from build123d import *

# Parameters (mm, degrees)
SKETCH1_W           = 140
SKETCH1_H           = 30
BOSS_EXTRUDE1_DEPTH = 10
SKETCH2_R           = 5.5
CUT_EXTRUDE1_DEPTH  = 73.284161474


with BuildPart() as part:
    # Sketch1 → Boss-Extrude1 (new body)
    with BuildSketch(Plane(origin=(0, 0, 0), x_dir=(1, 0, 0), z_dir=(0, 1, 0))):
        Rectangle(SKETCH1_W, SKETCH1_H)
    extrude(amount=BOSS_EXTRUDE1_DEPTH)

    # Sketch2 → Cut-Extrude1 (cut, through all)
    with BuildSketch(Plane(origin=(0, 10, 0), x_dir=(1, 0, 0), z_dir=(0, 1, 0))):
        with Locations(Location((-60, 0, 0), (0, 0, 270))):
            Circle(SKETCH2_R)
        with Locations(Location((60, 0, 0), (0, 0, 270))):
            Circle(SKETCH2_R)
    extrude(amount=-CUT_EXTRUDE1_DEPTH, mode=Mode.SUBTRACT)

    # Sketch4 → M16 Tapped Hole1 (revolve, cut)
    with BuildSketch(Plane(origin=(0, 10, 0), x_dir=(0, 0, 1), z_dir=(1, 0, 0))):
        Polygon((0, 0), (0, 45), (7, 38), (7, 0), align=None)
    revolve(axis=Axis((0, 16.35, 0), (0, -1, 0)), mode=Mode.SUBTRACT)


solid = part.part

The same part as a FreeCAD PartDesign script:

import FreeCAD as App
import Part
import Sketcher

doc = App.newDocument("Part")
body = doc.addObject("PartDesign::Body", "Body")

# Sketch on XZ plane
sketch1 = doc.addObject("Sketcher::SketchObject", "Sketch")
body.addObject(sketch1)
sketch1.AttachmentSupport = (doc.XZ_Plane, [""])
sketch1.MapMode = "FlatFace"
sketch1.addGeometry([
    Part.LineSegment(App.Vector(-70, -15, 0), App.Vector(-70, 15, 0)),
    Part.LineSegment(App.Vector(-70, 15, 0), App.Vector(70, 15, 0)),
    Part.LineSegment(App.Vector(70, 15, 0), App.Vector(70, -15, 0)),
    Part.LineSegment(App.Vector(70, -15, 0), App.Vector(-70, -15, 0)),
], False)
sketch1.addConstraint([
    Sketcher.Constraint("Coincident", 0, 2, 1, 1),
    Sketcher.Constraint("Coincident", 1, 2, 2, 1),
    Sketcher.Constraint("Coincident", 2, 2, 3, 1),
    Sketcher.Constraint("Coincident", 3, 2, 0, 1),
    Sketcher.Constraint("Vertical", 0),
    Sketcher.Constraint("Horizontal", 1),
    Sketcher.Constraint("Vertical", 2),
    Sketcher.Constraint("Horizontal", 3),
    Sketcher.Constraint("Symmetric", 0, 2, 2, 2, -1, 1),
    Sketcher.Constraint("DistanceX", 1, 1, 1, 2, 140.0),
    Sketcher.Constraint("DistanceY", 0, 1, 0, 2, 30.0),
])
pad1 = doc.addObject("PartDesign::Pad", "Pad")
body.addObject(pad1)
pad1.Profile = sketch1
pad1.Length = 10
pad1.Reversed = True

# Sketch on XZ plane
sketch2 = doc.addObject("Sketcher::SketchObject", "Sketch001")
body.addObject(sketch2)
sketch2.AttachmentSupport = (doc.XZ_Plane, [""])
sketch2.MapMode = "FlatFace"
sketch2.AttachmentOffset = App.Placement(App.Vector(0, 0, -10), App.Rotation())
sketch2.addGeometry([
    Part.Circle(App.Vector(-60, 0, 0), App.Vector(0, 0, 1), 6),
    Part.Circle(App.Vector(60, 0, 0), App.Vector(0, 0, 1), 6),
], False)
sketch2.addConstraint([
    Sketcher.Constraint("Equal", 0, 1),
    Sketcher.Constraint("Symmetric", 0, 3, 1, 3, -1, 1),
    Sketcher.Constraint("PointOnObject", 0, 3, -1),
    Sketcher.Constraint("Diameter", 0, 11.0),
    Sketcher.Constraint("DistanceX", 0, 3, -1, 1, 60.0),
])
pocket1 = doc.addObject("PartDesign::Pocket", "Pocket")
body.addObject(pocket1)
pocket1.Profile = sketch2
pocket1.Type = "ThroughAll"
pocket1.Reversed = True

# Sketch on YZ plane
sketch3 = doc.addObject("Sketcher::SketchObject", "Sketch002")
body.addObject(sketch3)
sketch3.AttachmentSupport = (doc.YZ_Plane, [""])
sketch3.MapMode = "FlatFace"
sketch3.addGeometry([
    Part.LineSegment(App.Vector(-35, 0, 0), App.Vector(10, 0, 0)),
    Part.LineSegment(App.Vector(10, 0, 0), App.Vector(10, 7, 0)),
    Part.LineSegment(App.Vector(10, 7, 0), App.Vector(-28, 7, 0)),
    Part.LineSegment(App.Vector(-28, 7, 0), App.Vector(-35, 0, 0)),
], False)
sketch3.addConstraint([
    Sketcher.Constraint("Coincident", 0, 2, 1, 1),
    Sketcher.Constraint("Coincident", 1, 2, 2, 1),
    Sketcher.Constraint("Coincident", 2, 2, 3, 1),
    Sketcher.Constraint("Coincident", 3, 2, 0, 1),
    Sketcher.Constraint("Horizontal", 0),
    Sketcher.Constraint("Vertical", 1),
    Sketcher.Constraint("Horizontal", 2),
    Sketcher.Constraint("PointOnObject", 0, 2, -1),
    Sketcher.Constraint("DistanceX", 0, 1, 0, 2, 45.0),
    Sketcher.Constraint("DistanceX", 2, 2, 2, 1, 38.0),
    Sketcher.Constraint("DistanceY", 1, 1, 1, 2, 7.0),
    Sketcher.Constraint("DistanceX", -1, 1, 0, 2, 10.0),
])
groove = doc.addObject("PartDesign::Groove", "Groove")
body.addObject(groove)
groove.Profile = sketch3
groove.ReferenceAxis = (sketch3, ["H_Axis"])
groove.Angle = 360

doc.recompute()
